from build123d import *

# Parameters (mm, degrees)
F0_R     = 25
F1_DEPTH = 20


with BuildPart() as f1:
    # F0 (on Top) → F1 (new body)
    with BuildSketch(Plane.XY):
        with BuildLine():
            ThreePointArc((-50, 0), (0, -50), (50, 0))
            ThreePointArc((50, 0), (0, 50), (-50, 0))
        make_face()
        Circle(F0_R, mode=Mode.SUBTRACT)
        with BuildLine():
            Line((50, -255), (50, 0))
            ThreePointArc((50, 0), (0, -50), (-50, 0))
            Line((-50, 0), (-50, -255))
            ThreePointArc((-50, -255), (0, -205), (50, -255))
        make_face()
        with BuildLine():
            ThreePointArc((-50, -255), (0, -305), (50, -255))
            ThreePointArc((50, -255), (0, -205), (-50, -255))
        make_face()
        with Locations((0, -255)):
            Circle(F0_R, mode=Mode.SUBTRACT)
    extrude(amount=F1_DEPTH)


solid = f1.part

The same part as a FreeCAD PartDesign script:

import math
import FreeCAD as App
import Part
import Sketcher

V = App.Vector
Q = App.Units.Quantity

doc = App.newDocument("Part")
params = doc.addObject("Spreadsheet::Sheet", "Params")
for row, (alias, value) in enumerate([
    ("sketch1_diameter", "50 mm"),
    ("sketch1_radius", "50 mm"),
    ("sketch1_height", "255 mm"),
    ("pad1_length", "20 mm"),
], start=1):
    params.set(f"A{row}", alias)
    params.set(f"B{row}", "=" + value)
    params.setAlias(f"B{row}", alias)

body = doc.addObject("PartDesign::Body", "Body")

# Sketch on XY plane
sketch1 = body.newObject("Sketcher::SketchObject", "Sketch")
sketch1.AttachmentSupport = (doc.getObject("XY_Plane"), [""])
sketch1.MapMode = "FlatFace"
sketch1.addGeometry(Part.ArcOfCircle(Part.Circle(V(0, 0, 0), V(0, 0, 1), 50), math.radians(0), math.radians(180)), False)
sketch1.addGeometry(Part.LineSegment(V(-50, 0, 0), V(-50, -255, 0)), False)
sketch1.addGeometry(Part.ArcOfCircle(Part.Circle(V(0, -255, 0), V(0, 0, 1), 50), math.radians(180), math.radians(360)), False)
sketch1.addGeometry(Part.LineSegment(V(50, -255, 0), V(50, 0, 0)), False)
sketch1.addGeometry(Part.Circle(V(0, -255, 0), V(0, 0, 1), 25), False)
sketch1.addGeometry(Part.Circle(V(0, 0, 0), V(0, 0, 1), 25), False)
sketch1.addConstraint(Sketcher.Constraint("Tangent", 0, 2, 1, 1))
sketch1.addConstraint(Sketcher.Constraint("Tangent", 1, 2, 2, 1))
sketch1.addConstraint(Sketcher.Constraint("Tangent", 2, 2, 3, 1))
sketch1.addConstraint(Sketcher.Constraint("Tangent", 3, 2, 0, 1))
sketch1.addConstraint(Sketcher.Constraint("Vertical", 1))
sketch1.addConstraint(Sketcher.Constraint("Vertical", 3))
sketch1.addConstraint(Sketcher.Constraint("Coincident", 0, 3, -1, 1))
sketch1.addConstraint(Sketcher.Constraint("Coincident", 5, 3, -1, 1))
sketch1.addConstraint(Sketcher.Constraint("Coincident", 4, 3, 2, 3))
sketch1.addConstraint(Sketcher.Constraint("Equal", 4, 5))
sketch1.addConstraint(Sketcher.Constraint("Diameter", 4, Q("50 mm")))
sketch1.addConstraint(Sketcher.Constraint("Radius", 0, Q("50 mm")))
sketch1.addConstraint(Sketcher.Constraint("DistanceY", 1, 2, 1, 1, Q("255 mm")))
sketch1.setExpression("Constraints[10]", "Params.sketch1_diameter")
sketch1.setExpression("Constraints[11]", "Params.sketch1_radius")
sketch1.setExpression("Constraints[12]", "Params.sketch1_height")
pad1 = body.newObject("PartDesign::Pad", "Pad")
pad1.Profile = sketch1
pad1.setExpression("Length", "Params.pad1_length")

doc.recompute()
